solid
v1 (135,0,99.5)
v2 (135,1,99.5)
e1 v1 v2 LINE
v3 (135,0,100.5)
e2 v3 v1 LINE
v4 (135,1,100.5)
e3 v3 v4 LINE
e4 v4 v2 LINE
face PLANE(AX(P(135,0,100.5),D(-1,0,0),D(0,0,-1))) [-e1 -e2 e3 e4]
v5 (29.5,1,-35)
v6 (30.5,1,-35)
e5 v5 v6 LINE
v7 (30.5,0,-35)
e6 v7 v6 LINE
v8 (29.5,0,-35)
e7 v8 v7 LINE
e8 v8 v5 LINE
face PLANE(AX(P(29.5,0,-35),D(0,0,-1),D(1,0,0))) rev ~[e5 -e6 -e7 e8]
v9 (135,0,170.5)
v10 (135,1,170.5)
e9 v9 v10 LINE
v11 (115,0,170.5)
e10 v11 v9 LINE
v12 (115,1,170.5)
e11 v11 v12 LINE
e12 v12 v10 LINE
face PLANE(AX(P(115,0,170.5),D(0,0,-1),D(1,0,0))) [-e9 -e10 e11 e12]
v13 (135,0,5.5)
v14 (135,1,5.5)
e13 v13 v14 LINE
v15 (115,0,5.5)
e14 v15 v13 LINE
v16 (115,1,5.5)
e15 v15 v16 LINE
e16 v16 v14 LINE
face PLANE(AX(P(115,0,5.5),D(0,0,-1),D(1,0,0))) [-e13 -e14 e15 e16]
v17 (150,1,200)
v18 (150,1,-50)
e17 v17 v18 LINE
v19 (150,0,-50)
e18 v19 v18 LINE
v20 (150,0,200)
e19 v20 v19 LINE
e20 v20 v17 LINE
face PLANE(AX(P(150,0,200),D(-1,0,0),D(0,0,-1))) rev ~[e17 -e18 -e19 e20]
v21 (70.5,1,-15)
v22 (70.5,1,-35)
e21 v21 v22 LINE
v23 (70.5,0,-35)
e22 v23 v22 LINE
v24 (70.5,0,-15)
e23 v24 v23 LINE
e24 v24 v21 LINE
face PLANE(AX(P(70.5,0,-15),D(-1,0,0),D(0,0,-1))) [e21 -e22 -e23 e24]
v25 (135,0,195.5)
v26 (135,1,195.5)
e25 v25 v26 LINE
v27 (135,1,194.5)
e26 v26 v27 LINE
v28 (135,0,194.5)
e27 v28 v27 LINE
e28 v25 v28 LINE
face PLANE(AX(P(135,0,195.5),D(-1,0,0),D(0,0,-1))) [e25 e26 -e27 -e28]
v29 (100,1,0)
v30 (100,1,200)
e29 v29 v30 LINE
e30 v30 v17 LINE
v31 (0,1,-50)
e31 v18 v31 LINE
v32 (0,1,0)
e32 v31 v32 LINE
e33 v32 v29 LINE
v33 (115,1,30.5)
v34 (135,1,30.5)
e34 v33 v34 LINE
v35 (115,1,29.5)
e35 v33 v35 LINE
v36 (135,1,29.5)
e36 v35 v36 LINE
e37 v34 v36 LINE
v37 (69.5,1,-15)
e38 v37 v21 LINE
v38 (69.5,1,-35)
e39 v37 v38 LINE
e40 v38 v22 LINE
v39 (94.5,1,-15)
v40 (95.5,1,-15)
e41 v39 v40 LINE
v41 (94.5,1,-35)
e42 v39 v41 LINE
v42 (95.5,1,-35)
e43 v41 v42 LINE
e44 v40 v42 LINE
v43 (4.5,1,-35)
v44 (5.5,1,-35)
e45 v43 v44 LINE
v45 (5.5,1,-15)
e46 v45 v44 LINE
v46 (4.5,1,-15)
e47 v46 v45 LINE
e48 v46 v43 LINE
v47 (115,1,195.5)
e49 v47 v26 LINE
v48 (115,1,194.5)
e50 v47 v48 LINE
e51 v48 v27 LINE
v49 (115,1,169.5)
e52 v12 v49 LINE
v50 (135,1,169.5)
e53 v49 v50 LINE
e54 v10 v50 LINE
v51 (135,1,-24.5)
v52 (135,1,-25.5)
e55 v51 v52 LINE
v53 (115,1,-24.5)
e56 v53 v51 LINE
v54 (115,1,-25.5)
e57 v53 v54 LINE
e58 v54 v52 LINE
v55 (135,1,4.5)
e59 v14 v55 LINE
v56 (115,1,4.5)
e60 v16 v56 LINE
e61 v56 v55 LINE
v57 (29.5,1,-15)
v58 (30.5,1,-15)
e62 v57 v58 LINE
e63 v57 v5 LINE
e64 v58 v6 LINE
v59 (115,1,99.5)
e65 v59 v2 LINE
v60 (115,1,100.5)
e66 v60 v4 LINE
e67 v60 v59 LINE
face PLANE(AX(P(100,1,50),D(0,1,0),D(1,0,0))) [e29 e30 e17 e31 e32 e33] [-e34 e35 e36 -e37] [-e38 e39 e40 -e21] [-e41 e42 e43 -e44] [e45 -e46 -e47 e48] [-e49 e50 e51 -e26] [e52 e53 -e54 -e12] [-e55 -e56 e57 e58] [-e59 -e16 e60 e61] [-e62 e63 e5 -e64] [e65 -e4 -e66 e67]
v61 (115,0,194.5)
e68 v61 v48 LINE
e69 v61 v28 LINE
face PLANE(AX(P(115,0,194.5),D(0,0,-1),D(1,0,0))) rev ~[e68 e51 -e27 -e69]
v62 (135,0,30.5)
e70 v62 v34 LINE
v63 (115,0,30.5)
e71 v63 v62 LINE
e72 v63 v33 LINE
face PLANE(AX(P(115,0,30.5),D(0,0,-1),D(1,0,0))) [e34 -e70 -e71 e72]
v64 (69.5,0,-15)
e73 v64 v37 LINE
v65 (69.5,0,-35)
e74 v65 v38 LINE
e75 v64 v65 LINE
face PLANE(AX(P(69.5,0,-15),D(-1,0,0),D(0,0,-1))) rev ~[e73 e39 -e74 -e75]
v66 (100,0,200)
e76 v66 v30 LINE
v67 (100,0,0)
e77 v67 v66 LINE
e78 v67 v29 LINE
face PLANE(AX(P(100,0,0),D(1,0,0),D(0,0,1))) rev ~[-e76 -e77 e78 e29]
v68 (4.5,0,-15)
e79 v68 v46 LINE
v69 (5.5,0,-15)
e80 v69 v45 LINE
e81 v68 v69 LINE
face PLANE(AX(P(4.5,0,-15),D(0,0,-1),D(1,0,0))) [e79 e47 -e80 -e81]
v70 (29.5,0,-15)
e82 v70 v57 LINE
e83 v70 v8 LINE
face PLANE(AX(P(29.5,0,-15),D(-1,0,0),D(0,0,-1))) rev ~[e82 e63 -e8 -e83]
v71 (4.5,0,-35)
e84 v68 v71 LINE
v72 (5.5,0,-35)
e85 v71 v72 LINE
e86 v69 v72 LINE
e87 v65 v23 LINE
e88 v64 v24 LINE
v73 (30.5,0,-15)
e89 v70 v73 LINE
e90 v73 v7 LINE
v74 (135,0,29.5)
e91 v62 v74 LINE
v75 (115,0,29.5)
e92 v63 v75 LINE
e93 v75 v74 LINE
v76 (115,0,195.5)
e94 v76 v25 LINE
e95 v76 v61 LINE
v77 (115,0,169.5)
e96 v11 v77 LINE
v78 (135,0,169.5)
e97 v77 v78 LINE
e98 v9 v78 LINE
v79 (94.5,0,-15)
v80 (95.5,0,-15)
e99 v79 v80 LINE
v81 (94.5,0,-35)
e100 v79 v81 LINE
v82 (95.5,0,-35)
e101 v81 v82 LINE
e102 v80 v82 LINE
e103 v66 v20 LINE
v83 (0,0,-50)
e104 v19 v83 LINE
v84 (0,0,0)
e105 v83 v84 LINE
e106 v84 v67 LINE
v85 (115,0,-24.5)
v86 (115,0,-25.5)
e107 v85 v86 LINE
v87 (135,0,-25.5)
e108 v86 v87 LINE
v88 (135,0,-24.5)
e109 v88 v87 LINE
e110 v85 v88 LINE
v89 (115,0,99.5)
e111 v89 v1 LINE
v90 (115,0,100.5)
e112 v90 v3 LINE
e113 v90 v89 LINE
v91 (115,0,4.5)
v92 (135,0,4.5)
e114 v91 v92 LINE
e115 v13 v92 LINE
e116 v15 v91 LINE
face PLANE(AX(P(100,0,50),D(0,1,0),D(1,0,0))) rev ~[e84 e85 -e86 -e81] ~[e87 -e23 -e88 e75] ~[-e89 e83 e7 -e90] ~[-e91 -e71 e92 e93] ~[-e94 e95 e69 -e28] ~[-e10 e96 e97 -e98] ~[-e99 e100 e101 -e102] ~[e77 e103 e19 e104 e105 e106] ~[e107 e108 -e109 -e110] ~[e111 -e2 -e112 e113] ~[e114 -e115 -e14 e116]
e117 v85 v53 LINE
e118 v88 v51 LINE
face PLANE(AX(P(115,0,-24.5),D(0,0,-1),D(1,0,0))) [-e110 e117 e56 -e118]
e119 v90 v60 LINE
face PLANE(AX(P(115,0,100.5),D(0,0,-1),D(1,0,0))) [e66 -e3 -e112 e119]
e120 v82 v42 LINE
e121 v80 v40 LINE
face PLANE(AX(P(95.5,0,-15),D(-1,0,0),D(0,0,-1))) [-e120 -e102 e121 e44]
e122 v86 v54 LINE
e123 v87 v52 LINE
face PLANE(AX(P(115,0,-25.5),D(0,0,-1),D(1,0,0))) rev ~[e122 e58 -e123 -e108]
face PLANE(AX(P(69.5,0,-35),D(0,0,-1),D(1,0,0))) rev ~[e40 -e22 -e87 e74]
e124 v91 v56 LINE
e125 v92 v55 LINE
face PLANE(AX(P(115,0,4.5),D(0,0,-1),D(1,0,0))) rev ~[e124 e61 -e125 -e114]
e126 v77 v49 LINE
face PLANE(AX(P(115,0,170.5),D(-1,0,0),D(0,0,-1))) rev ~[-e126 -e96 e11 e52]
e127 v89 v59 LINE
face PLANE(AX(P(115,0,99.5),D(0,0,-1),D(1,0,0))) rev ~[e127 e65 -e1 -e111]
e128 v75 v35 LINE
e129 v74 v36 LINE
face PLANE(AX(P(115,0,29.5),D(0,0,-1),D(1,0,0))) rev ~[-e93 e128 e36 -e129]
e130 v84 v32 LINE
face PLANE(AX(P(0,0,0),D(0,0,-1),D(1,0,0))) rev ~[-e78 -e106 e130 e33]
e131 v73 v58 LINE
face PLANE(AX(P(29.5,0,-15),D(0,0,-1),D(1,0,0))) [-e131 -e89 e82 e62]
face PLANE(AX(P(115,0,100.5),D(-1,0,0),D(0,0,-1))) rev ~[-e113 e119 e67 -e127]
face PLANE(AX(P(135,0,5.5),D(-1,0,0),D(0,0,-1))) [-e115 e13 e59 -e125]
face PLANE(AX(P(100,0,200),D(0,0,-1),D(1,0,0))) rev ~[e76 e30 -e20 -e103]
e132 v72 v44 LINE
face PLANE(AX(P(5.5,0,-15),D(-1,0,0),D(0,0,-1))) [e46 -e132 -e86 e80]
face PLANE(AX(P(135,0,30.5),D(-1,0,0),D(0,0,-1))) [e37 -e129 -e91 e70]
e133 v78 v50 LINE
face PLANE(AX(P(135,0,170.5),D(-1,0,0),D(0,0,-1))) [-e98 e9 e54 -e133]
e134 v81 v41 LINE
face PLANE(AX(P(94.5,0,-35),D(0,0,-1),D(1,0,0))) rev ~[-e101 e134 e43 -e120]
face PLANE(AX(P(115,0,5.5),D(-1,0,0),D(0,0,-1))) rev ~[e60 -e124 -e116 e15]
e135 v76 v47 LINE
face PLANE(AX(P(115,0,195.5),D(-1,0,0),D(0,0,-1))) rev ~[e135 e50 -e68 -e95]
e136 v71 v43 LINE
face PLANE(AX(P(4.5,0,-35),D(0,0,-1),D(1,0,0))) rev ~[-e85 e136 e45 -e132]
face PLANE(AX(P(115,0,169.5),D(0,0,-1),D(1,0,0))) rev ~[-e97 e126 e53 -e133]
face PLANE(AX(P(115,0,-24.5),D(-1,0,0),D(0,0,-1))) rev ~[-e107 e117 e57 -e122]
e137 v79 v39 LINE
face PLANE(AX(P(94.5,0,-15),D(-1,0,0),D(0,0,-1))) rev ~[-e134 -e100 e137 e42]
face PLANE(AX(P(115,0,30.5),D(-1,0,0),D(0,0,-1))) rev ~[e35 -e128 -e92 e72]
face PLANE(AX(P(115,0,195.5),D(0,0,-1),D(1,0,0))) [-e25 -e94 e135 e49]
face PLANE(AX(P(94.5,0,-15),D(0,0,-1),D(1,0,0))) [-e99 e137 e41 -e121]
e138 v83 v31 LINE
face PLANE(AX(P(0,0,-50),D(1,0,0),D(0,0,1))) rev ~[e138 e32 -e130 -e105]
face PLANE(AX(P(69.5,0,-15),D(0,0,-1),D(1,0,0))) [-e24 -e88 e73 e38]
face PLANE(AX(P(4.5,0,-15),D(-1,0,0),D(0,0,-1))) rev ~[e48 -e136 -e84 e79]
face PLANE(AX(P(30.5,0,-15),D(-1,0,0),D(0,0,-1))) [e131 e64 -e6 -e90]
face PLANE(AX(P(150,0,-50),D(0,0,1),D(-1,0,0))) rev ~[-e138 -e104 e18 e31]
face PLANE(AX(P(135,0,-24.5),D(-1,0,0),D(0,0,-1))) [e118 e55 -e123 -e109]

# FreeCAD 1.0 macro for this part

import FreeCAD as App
import Part
import Sketcher
from FreeCAD import Vector
Q = App.Units.Quantity

doc = App.newDocument("Part")
body = doc.addObject("PartDesign::Body", "Body")

sketch1 = doc.addObject("Sketcher::SketchObject", "Sketch")
body.addObject(sketch1)
sketch1.AttachmentSupport = (doc.XZ_Plane, [""])
sketch1.MapMode = "FlatFace"
sketch1.addGeometry([
    Part.LineSegment(Vector(0, 0, 0), Vector(100, 0, 0)),
    Part.LineSegment(Vector(100, 0, 0), Vector(100, 200, 0)),
    Part.LineSegment(Vector(100, 200, 0), Vector(150, 200, 0)),
    Part.LineSegment(Vector(150, 200, 0), Vector(150, -50, 0)),
    Part.LineSegment(Vector(150, -50, 0), Vector(0, -50, 0)),
    Part.LineSegment(Vector(0, -50, 0), Vector(0, 0, 0)),
    Part.LineSegment(Vector(135, 195.5, 0), Vector(115, 195.5, 0)),
    Part.LineSegment(Vector(115, 195.5, 0), Vector(115, 194.5, 0)),
    Part.LineSegment(Vector(115, 194.5, 0), Vector(135, 194.5, 0)),
    Part.LineSegment(Vector(135, 194.5, 0), Vector(135, 195.5, 0)),
    Part.LineSegment(Vector(135, 170.5, 0), Vector(115, 170.5, 0)),
    Part.LineSegment(Vector(115, 170.5, 0), Vector(115, 169.5, 0)),
    Part.LineSegment(Vector(115, 169.5, 0), Vector(135, 169.5, 0)),
    Part.LineSegment(Vector(135, 169.5, 0), Vector(135, 170.5, 0)),
    Part.LineSegment(Vector(135, 100.5, 0), Vector(115, 100.5, 0)),
    Part.LineSegment(Vector(115, 100.5, 0), Vector(115, 99.5, 0)),
    Part.LineSegment(Vector(115, 99.5, 0), Vector(135, 99.5, 0)),
    Part.LineSegment(Vector(135, 99.5, 0), Vector(135, 100.5, 0)),
    Part.LineSegment(Vector(5.5, -15, 0), Vector(4.5, -15, 0)),
    Part.LineSegment(Vector(4.5, -15, 0), Vector(4.5, -35, 0)),
    Part.LineSegment(Vector(4.5, -35, 0), Vector(5.5, -35, 0)),
    Part.LineSegment(Vector(5.5, -35, 0), Vector(5.5, -15, 0)),
    Part.LineSegment(Vector(30.5, -15, 0), Vector(29.5, -15, 0)),
    Part.LineSegment(Vector(29.5, -15, 0), Vector(29.5, -35, 0)),
    Part.LineSegment(Vector(29.5, -35, 0), Vector(30.5, -35, 0)),
    Part.LineSegment(Vector(30.5, -35, 0), Vector(30.5, -15, 0)),
    Part.LineSegment(Vector(135, 30.5, 0), Vector(115, 30.5, 0)),
    Part.LineSegment(Vector(115, 30.5, 0), Vector(115, 29.5, 0)),
    Part.LineSegment(Vector(115, 29.5, 0), Vector(135, 29.5, 0)),
    Part.LineSegment(Vector(135, 29.5, 0), Vector(135, 30.5, 0)),
    Part.LineSegment(Vector(70.5, -15, 0), Vector(69.5, -15, 0)),
    Part.LineSegment(Vector(69.5, -15, 0), Vector(69.5, -35, 0)),
    Part.LineSegment(Vector(69.5, -35, 0), Vector(70.5, -35, 0)),
    Part.LineSegment(Vector(70.5, -35, 0), Vector(70.5, -15, 0)),
    Part.LineSegment(Vector(95.5, -15, 0), Vector(94.5, -15, 0)),
    Part.LineSegment(Vector(94.5, -15, 0), Vector(94.5, -35, 0)),
    Part.LineSegment(Vector(94.5, -35, 0), Vector(95.5, -35, 0)),
    Part.LineSegment(Vector(95.5, -35, 0), Vector(95.5, -15, 0)),
    Part.LineSegment(Vector(135, 5.5, 0), Vector(115, 5.5, 0)),
    Part.LineSegment(Vector(115, 5.5, 0), Vector(115, 4.5, 0)),
    Part.LineSegment(Vector(115, 4.5, 0), Vector(135, 4.5, 0)),
    Part.LineSegment(Vector(135, 4.5, 0), Vector(135, 5.5, 0)),
    Part.LineSegment(Vector(135, -24.5, 0), Vector(115, -24.5, 0)),
    Part.LineSegment(Vector(115, -24.5, 0), Vector(115, -25.5, 0)),
    Part.LineSegment(Vector(115, -25.5, 0), Vector(135, -25.5, 0)),
    Part.LineSegment(Vector(135, -25.5, 0), Vector(135, -24.5, 0)),
], False)
sketch1.addConstraint([
    Sketcher.Constraint("Coincident", 0, 2, 1, 1),
    Sketcher.Constraint("Coincident", 1, 2, 2, 1),
    Sketcher.Constraint("Coincident", 2, 2, 3, 1),
    Sketcher.Constraint("Coincident", 3, 2, 4, 1),
    Sketcher.Constraint("Coincident", 4, 2, 5, 1),
    Sketcher.Constraint("Coincident", 5, 2, 0, 1),
    Sketcher.Constraint("Coincident", 6, 2, 7, 1),
    Sketcher.Constraint("Coincident", 7, 2, 8, 1),
    Sketcher.Constraint("Coincident", 8, 2, 9, 1),
    Sketcher.Constraint("Coincident", 9, 2, 6, 1),
    Sketcher.Constraint("Coincident", 10, 2, 11, 1),
    Sketcher.Constraint("Coincident", 11, 2, 12, 1),
    Sketcher.Constraint("Coincident", 12, 2, 13, 1),
    Sketcher.Constraint("Coincident", 13, 2, 10, 1),
    Sketcher.Constraint("Coincident", 14, 2, 15, 1),
    Sketcher.Constraint("Coincident", 15, 2, 16, 1),
    Sketcher.Constraint("Coincident", 16, 2, 17, 1),
    Sketcher.Constraint("Coincident", 17, 2, 14, 1),
    Sketcher.Constraint("Coincident", 18, 2, 19, 1),
    Sketcher.Constraint("Coincident", 19, 2, 20, 1),
    Sketcher.Constraint("Coincident", 20, 2, 21, 1),
    Sketcher.Constraint("Coincident", 21, 2, 18, 1),
    Sketcher.Constraint("Coincident", 22, 2, 23, 1),
    Sketcher.Constraint("Coincident", 23, 2, 24, 1),
    Sketcher.Constraint("Coincident", 24, 2, 25, 1),
    Sketcher.Constraint("Coincident", 25, 2, 22, 1),
    Sketcher.Constraint("Coincident", 26, 2, 27, 1),
    Sketcher.Constraint("Coincident", 27, 2, 28, 1),
    Sketcher.Constraint("Coincident", 28, 2, 29, 1),
    Sketcher.Constraint("Coincident", 29, 2, 26, 1),
    Sketcher.Constraint("Coincident", 30, 2, 31, 1),
    Sketcher.Constraint("Coincident", 31, 2, 32, 1),
    Sketcher.Constraint("Coincident", 32, 2, 33, 1),
    Sketcher.Constraint("Coincident", 33, 2, 30, 1),
    Sketcher.Constraint("Coincident", 34, 2, 35, 1),
    Sketcher.Constraint("Coincident", 35, 2, 36, 1),
    Sketcher.Constraint("Coincident", 36, 2, 37, 1),
    Sketcher.Constraint("Coincident", 37, 2, 34, 1),
    Sketcher.Constraint("Coincident", 38, 2, 39, 1),
    Sketcher.Constraint("Coincident", 39, 2, 40, 1),
    Sketcher.Constraint("Coincident", 40, 2, 41, 1),
    Sketcher.Constraint("Coincident", 41, 2, 38, 1),
    Sketcher.Constraint("Coincident", 42, 2, 43, 1),
    Sketcher.Constraint("Coincident", 43, 2, 44, 1),
    Sketcher.Constraint("Coincident", 44, 2, 45, 1),
    Sketcher.Constraint("Coincident", 45, 2, 42, 1),
    Sketcher.Constraint("Horizontal", 0),
    Sketcher.Constraint("Vertical", 1),
    Sketcher.Constraint("Horizontal", 2),
    Sketcher.Constraint("Vertical", 3),
    Sketcher.Constraint("Horizontal", 4),
    Sketcher.Constraint("Vertical", 5),
    Sketcher.Constraint("Horizontal", 6),
    Sketcher.Constraint("Vertical", 7),
    Sketcher.Constraint("Horizontal", 8),
    Sketcher.Constraint("Vertical", 9),
    Sketcher.Constraint("Horizontal", 10),
    Sketcher.Constraint("Vertical", 11),
    Sketcher.Constraint("Horizontal", 12),
    Sketcher.Constraint("Vertical", 13),
    Sketcher.Constraint("Horizontal", 14),
    Sketcher.Constraint("Vertical", 15),
    Sketcher.Constraint("Horizontal", 16),
    Sketcher.Constraint("Vertical", 17),
    Sketcher.Constraint("Horizontal", 18),
    Sketcher.Constraint("Vertical", 19),
    Sketcher.Constraint("Horizontal", 20),
    Sketcher.Constraint("Vertical", 21),
    Sketcher.Constraint("Horizontal", 22),
    Sketcher.Constraint("Vertical", 23),
    Sketcher.Constraint("Horizontal", 24),
    Sketcher.Constraint("Vertical", 25),
    Sketcher.Constraint("Horizontal", 26),
    Sketcher.Constraint("Vertical", 27),
    Sketcher.Constraint("Horizontal", 28),
    Sketcher.Constraint("Vertical", 29),
    Sketcher.Constraint("Horizontal", 30),
    Sketcher.Constraint("Vertical", 31),
    Sketcher.Constraint("Horizontal", 32),
    Sketcher.Constraint("Vertical", 33),
    Sketcher.Constraint("Horizontal", 34),
    Sketcher.Constraint("Vertical", 35),
    Sketcher.Constraint("Horizontal", 36),
    Sketcher.Constraint("Vertical", 37),
    Sketcher.Constraint("Horizontal", 38),
    Sketcher.Constraint("Vertical", 39),
    Sketcher.Constraint("Horizontal", 40),
    Sketcher.Constraint("Vertical", 41),
    Sketcher.Constraint("Horizontal", 42),
    Sketcher.Constraint("Vertical", 43),
    Sketcher.Constraint("Horizontal", 44),
    Sketcher.Constraint("Vertical", 45),
    Sketcher.Constraint("Coincident", 5, 2, -1, 1),
    Sketcher.Constraint("Horizontal", 21, 2, 22, 2),
    Sketcher.Constraint("Horizontal", 20, 2, 23, 2),
    Sketcher.Constraint("Horizontal", 25, 2, 30, 2),
    Sketcher.Constraint("Horizontal", 24, 2, 31, 2),
    Sketcher.Constraint("Horizontal", 33, 2, 34, 2),
    Sketcher.Constraint("Horizontal", 32, 2, 35, 2),
    Sketcher.Constraint("Vertical", 7, 2, 10, 2),
    Sketcher.Constraint("Vertical", 9, 2, 12, 2),
    Sketcher.Constraint("Vertical", 11, 2, 14, 2),
    Sketcher.Constraint("Vertical", 13, 2, 16, 2),
    Sketcher.Constraint("Vertical", 15, 2, 26, 2),
    Sketcher.Constraint("Vertical", 17, 2, 28, 2),
    Sketcher.Constraint("Vertical", 27, 2, 38, 2),
    Sketcher.Constraint("Vertical", 29, 2, 40, 2),
    Sketcher.Constraint("Vertical", 39, 2, 42, 2),
    Sketcher.Constraint("Vertical", 41, 2, 44, 2),
    Sketcher.Constraint("Equal", 20, 22),
    Sketcher.Constraint("Equal", 24, 30),
    Sketcher.Constraint("Equal", 32, 34),
    Sketcher.Constraint("Equal", 2, 5),
    Sketcher.Constraint("Equal", 36, 7),
    Sketcher.Constraint("Equal", 9, 11),
    Sketcher.Constraint("Equal", 13, 15),
    Sketcher.Constraint("Equal", 44, 19),
    Sketcher.Constraint("Equal", 17, 27),
    Sketcher.Constraint("Equal", 29, 39),
    Sketcher.Constraint("Equal", 41, 43),
    Sketcher.Constraint("DistanceX", 0, 1, 0, 2, Q("100 mm")),
    Sketcher.Constraint("DistanceX", 2, 1, 2, 2, Q("50 mm")),
    Sketcher.Constraint("DistanceX", 6, 2, 6, 1, Q("20 mm")),
    Sketcher.Constraint("DistanceX", 18, 2, 18, 1, Q("1 mm")),
    Sketcher.Constraint("DistanceY", 1, 1, 1, 2, Q("200 mm")),
    Sketcher.Constraint("DistanceX", -1, 1, 6, 2, Q("115 mm")),
    Sketcher.Constraint("DistanceY", 18, 2, -1, 1, Q("15 mm")),
    Sketcher.Constraint("DistanceY", 10, 2, 7, 2, Q("24 mm")),
    Sketcher.Constraint("DistanceY", 14, 2, 11, 2, Q("69 mm")),
    Sketcher.Constraint("DistanceX", 21, 2, 22, 2, Q("24 mm")),
    Sketcher.Constraint("DistanceY", 26, 2, 15, 2, Q("69 mm")),
    Sketcher.Constraint("DistanceX", 25, 2, 30, 2, Q("39 mm")),
    Sketcher.Constraint("DistanceX", 33, 2, 34, 2, Q("24 mm")),
    Sketcher.Constraint("DistanceY", 38, 2, 27, 2, Q("24 mm")),
    Sketcher.Constraint("DistanceY", 44, 2, 40, 2, Q("30 mm")),
    Sketcher.Constraint("DistanceY", -1, 1, 6, 2, Q("195.5 mm")),
    Sketcher.Constraint("DistanceX", -1, 1, 18, 2, Q("4.5 mm")),
])
pad1 = doc.addObject("PartDesign::Pad", "Pad")
body.addObject(pad1)
pad1.Profile = sketch1
pad1.Length = 1
pad1.Reversed = True

doc.recompute()
